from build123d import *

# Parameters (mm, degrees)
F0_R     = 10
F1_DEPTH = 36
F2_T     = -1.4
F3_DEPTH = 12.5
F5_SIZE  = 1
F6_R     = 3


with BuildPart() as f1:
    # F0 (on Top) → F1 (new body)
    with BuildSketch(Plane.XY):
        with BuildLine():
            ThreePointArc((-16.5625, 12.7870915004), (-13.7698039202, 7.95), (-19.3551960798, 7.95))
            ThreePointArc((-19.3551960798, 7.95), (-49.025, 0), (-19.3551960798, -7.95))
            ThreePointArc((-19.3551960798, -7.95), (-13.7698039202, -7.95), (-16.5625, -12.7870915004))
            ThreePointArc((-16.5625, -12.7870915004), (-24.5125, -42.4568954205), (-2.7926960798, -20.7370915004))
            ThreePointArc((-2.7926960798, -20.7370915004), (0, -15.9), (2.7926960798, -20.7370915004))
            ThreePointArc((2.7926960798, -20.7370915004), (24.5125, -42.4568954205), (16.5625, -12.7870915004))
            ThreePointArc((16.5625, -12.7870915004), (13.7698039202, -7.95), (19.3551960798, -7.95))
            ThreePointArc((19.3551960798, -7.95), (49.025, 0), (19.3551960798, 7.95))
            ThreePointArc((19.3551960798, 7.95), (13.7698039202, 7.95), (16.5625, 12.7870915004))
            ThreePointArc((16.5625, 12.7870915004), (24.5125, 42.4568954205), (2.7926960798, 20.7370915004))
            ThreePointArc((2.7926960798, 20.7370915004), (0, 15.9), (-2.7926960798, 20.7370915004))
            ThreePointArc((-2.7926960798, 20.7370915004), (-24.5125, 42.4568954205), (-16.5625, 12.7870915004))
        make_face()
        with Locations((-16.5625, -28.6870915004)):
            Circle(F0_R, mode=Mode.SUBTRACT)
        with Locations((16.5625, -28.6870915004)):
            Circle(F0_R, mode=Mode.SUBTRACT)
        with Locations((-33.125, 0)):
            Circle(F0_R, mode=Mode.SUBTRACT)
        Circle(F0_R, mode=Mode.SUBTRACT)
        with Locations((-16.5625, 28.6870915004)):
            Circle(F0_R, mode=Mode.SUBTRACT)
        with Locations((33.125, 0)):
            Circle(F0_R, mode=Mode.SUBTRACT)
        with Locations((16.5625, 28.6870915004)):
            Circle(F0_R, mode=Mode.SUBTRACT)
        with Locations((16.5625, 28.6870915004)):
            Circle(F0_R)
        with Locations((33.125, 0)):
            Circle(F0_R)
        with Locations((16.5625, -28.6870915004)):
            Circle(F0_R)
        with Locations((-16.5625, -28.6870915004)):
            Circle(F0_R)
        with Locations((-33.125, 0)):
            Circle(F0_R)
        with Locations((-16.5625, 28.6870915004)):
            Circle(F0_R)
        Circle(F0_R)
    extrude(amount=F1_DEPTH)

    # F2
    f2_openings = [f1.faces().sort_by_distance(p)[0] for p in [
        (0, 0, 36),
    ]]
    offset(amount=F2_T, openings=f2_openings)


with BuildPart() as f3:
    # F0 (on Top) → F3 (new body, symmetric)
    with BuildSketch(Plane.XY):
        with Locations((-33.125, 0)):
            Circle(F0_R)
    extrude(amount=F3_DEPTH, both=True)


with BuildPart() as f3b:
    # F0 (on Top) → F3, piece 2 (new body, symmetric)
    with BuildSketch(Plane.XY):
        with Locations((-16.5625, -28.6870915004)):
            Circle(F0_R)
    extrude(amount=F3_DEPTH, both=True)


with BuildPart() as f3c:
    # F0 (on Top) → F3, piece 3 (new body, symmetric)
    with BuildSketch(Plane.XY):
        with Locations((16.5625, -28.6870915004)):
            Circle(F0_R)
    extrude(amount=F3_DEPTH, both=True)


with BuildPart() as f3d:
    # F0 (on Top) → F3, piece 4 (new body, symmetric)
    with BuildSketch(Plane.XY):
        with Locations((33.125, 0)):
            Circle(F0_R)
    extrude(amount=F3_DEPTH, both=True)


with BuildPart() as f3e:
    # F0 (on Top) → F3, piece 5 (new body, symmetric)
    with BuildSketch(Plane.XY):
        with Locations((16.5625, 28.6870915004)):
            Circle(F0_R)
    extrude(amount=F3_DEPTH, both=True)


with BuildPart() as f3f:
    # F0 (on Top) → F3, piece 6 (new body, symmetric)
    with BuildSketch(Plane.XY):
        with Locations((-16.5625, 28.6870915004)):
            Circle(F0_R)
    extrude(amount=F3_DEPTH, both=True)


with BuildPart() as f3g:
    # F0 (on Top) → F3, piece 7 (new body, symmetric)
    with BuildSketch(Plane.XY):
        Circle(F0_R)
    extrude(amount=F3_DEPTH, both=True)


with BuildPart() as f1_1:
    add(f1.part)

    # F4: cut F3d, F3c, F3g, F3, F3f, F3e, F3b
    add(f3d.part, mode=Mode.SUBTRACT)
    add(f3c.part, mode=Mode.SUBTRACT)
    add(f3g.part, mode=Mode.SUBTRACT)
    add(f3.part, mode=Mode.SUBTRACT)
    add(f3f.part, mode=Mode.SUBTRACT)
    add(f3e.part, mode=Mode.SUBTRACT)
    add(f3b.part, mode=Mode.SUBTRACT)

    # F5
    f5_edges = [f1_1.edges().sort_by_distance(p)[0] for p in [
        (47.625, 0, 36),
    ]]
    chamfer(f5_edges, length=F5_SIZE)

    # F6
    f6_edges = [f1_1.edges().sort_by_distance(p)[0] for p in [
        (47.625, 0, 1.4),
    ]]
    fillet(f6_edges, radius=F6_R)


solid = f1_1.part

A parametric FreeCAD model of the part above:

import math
import FreeCAD as App
import Part
import Sketcher


def edges_at(feature, points):
    """Names of the edges that pass closest to the given points."""
    edges = feature.Shape.Edges
    near = lambda p: min(range(len(edges)), key=lambda i: edges[i].distToShape(Part.Vertex(*p))[0])
    return sorted({f"Edge{near(p) + 1}" for p in points})


def faces_at(feature, points):
    """Names of the faces that lie closest to the given points."""
    faces = feature.Shape.Faces
    near = lambda p: min(range(len(faces)), key=lambda i: faces[i].distToShape(Part.Vertex(*p))[0])
    return sorted({f"Face{near(p) + 1}" for p in points})

doc = App.newDocument("Part")
body = doc.addObject("PartDesign::Body", "Body")

sketch1 = doc.addObject("Sketcher::SketchObject", "Sketch")
body.addObject(sketch1)
sketch1.AttachmentSupport = (doc.XY_Plane, [""])
sketch1.MapMode = "FlatFace"
sketch1.addGeometry(Part.ArcOfCircle(Part.Circle(App.Vector(-16.6, 9.6, 0), App.Vector(0, 0, 1), 3.2), math.radians(-150), math.radians(90)), False)
sketch1.addGeometry(Part.ArcOfCircle(Part.Circle(App.Vector(-33.1, 0, 0), App.Vector(0, 0, 1), 15.9), math.radians(30), math.radians(330)), False)
sketch1.addGeometry(Part.ArcOfCircle(Part.Circle(App.Vector(-16.6, -9.6, 0), App.Vector(0, 0, 1), 3.2), math.radians(-90), math.radians(150)), False)
sketch1.addGeometry(Part.ArcOfCircle(Part.Circle(App.Vector(-16.6, -28.7, 0), App.Vector(0, 0, 1), 15.9), math.radians(90), math.radians(390)), False)
sketch1.addGeometry(Part.ArcOfCircle(Part.Circle(App.Vector(0, -19.1, 0), App.Vector(0, 0, 1), 3.2), math.radians(-30), math.radians(210)), False)
sketch1.addGeometry(Part.ArcOfCircle(Part.Circle(App.Vector(16.6, -28.7, 0), App.Vector(0, 0, 1), 15.9), math.radians(150), math.radians(450)), False)
sketch1.addGeometry(Part.ArcOfCircle(Part.Circle(App.Vector(16.6, -9.6, 0), App.Vector(0, 0, 1), 3.2), math.radians(30), math.radians(270)), False)
sketch1.addGeometry(Part.ArcOfCircle(Part.Circle(App.Vector(33.1, 0, 0), App.Vector(0, 0, 1), 15.9), math.radians(-150), math.radians(150)), False)
sketch1.addGeometry(Part.ArcOfCircle(Part.Circle(App.Vector(16.6, 9.6, 0), App.Vector(0, 0, 1), 3.2), math.radians(90), math.radians(330)), False)
sketch1.addGeometry(Part.ArcOfCircle(Part.Circle(App.Vector(16.6, 28.7, 0), App.Vector(0, 0, 1), 15.9), math.radians(-90), math.radians(210)), False)
sketch1.addGeometry(Part.ArcOfCircle(Part.Circle(App.Vector(0, 19.1, 0), App.Vector(0, 0, 1), 3.2), math.radians(150), math.radians(390)), False)
sketch1.addGeometry(Part.ArcOfCircle(Part.Circle(App.Vector(-16.6, 28.7, 0), App.Vector(0, 0, 1), 15.9), math.radians(-30), math.radians(270)), False)
sketch1.addConstraint(Sketcher.Constraint("Tangent", 0, 1, 1, 1))
sketch1.addConstraint(Sketcher.Constraint("Tangent", 1, 2, 2, 2))
sketch1.addConstraint(Sketcher.Constraint("Tangent", 2, 1, 3, 1))
sketch1.addConstraint(Sketcher.Constraint("Tangent", 3, 2, 4, 2))
sketch1.addConstraint(Sketcher.Constraint("Tangent", 4, 1, 5, 1))
sketch1.addConstraint(Sketcher.Constraint("Tangent", 5, 2, 6, 2))
sketch1.addConstraint(Sketcher.Constraint("Tangent", 6, 1, 7, 1))
sketch1.addConstraint(Sketcher.Constraint("Tangent", 7, 2, 8, 2))
sketch1.addConstraint(Sketcher.Constraint("Tangent", 8, 1, 9, 1))
sketch1.addConstraint(Sketcher.Constraint("Tangent", 9, 2, 10, 2))
sketch1.addConstraint(Sketcher.Constraint("Tangent", 10, 1, 11, 1))
sketch1.addConstraint(Sketcher.Constraint("Tangent", 11, 2, 0, 2))
sketch1.addConstraint(Sketcher.Constraint("Equal", 0, 2))
sketch1.addConstraint(Sketcher.Constraint("Equal", 1, 3))
sketch1.addConstraint(Sketcher.Constraint("Equal", 2, 4))
sketch1.addConstraint(Sketcher.Constraint("Equal", 3, 5))
sketch1.addConstraint(Sketcher.Constraint("Equal", 4, 6))
sketch1.addConstraint(Sketcher.Constraint("Equal", 5, 7))
sketch1.addConstraint(Sketcher.Constraint("Equal", 6, 8))
sketch1.addConstraint(Sketcher.Constraint("Equal", 7, 9))
sketch1.addConstraint(Sketcher.Constraint("Equal", 8, 10))
sketch1.addConstraint(Sketcher.Constraint("Equal", 9, 11))
sketch1.addConstraint(Sketcher.Constraint("Symmetric", 0, 3, 6, 3, -1, 1))
sketch1.addConstraint(Sketcher.Constraint("Symmetric", 2, 3, 8, 3, -1, 1))
sketch1.addConstraint(Sketcher.Constraint("Symmetric", 4, 3, 10, 3, -1, 1))
sketch1.addConstraint(Sketcher.Constraint("Symmetric", 3, 3, 5, 3, -2))
sketch1.addConstraint(Sketcher.Constraint("PointOnObject", 1, 3, -1))
sketch1.addConstraint(Sketcher.Constraint("Vertical", 2, 3, 3, 3))
sketch1.addConstraint(Sketcher.Constraint("Radius", 1, 15.9))
sketch1.addConstraint(Sketcher.Constraint("DistanceY", 1, 2, 0, 1, 15.9))
sketch1.addConstraint(Sketcher.Constraint("DistanceY", 3, 2, 2, 1, 7.95))
sketch1.addConstraint(Sketcher.Constraint("DistanceX", 1, 3, -1, 1, 33.125))
pad1 = doc.addObject("PartDesign::Pad", "Pad")
body.addObject(pad1)
pad1.Profile = sketch1
pad1.Length = 36
doc.recompute()

thickness = doc.addObject("PartDesign::Thickness", "Thickness")
body.addObject(thickness)
thickness.Base = (pad1, faces_at(pad1, [(0, 0, 36)]))
thickness.Value = 1.4
thickness.Reversed = True
thickness.Join = "Arc"
body2 = doc.addObject("PartDesign::Body", "Body001")

sketch2 = doc.addObject("Sketcher::SketchObject", "Sketch001")
body2.addObject(sketch2)
sketch2.AttachmentSupport = (doc.getObject("XY_Plane001"), [""])
sketch2.MapMode = "FlatFace"
sketch2.addGeometry(Part.Circle(App.Vector(-33, 0, 0), App.Vector(0, 0, 1), 10), False)
sketch2.addConstraint(Sketcher.Constraint("PointOnObject", 0, 3, -1))
sketch2.addConstraint(Sketcher.Constraint("Diameter", 0, 20.0))
sketch2.addConstraint(Sketcher.Constraint("DistanceX", 0, 3, -1, 1, 33.125))
pad2 = doc.addObject("PartDesign::Pad", "Pad001")
body2.addObject(pad2)
pad2.Profile = sketch2
pad2.Length = 25
pad2.Midplane = True
body3 = doc.addObject("PartDesign::Body", "Body002")

sketch3 = doc.addObject("Sketcher::SketchObject", "Sketch002")
body3.addObject(sketch3)
sketch3.AttachmentSupport = (doc.getObject("XY_Plane002"), [""])
sketch3.MapMode = "FlatFace"
sketch3.addGeometry(Part.Circle(App.Vector(-17, -29, 0), App.Vector(0, 0, 1), 10), False)
sketch3.addConstraint(Sketcher.Constraint("Diameter", 0, 20.0))
sketch3.addConstraint(Sketcher.Constraint("DistanceX", 0, 3, -1, 1, 16.5625))
sketch3.addConstraint(Sketcher.Constraint("DistanceY", 0, 3, -1, 1, 28.687092))
pad3 = doc.addObject("PartDesign::Pad", "Pad002")
body3.addObject(pad3)
pad3.Profile = sketch3
pad3.Length = 25
pad3.Midplane = True
body4 = doc.addObject("PartDesign::Body", "Body003")

sketch4 = doc.addObject("Sketcher::SketchObject", "Sketch003")
body4.addObject(sketch4)
sketch4.AttachmentSupport = (doc.getObject("XY_Plane003"), [""])
sketch4.MapMode = "FlatFace"
sketch4.addGeometry(Part.Circle(App.Vector(17, -29, 0), App.Vector(0, 0, 1), 10), False)
sketch4.addConstraint(Sketcher.Constraint("Diameter", 0, 20.0))
sketch4.addConstraint(Sketcher.Constraint("DistanceX", -1, 1, 0, 3, 16.5625))
sketch4.addConstraint(Sketcher.Constraint("DistanceY", 0, 3, -1, 1, 28.687092))
pad4 = doc.addObject("PartDesign::Pad", "Pad003")
body4.addObject(pad4)
pad4.Profile = sketch4
pad4.Length = 25
pad4.Midplane = True
body5 = doc.addObject("PartDesign::Body", "Body004")

sketch5 = doc.addObject("Sketcher::SketchObject", "Sketch004")
body5.addObject(sketch5)
sketch5.AttachmentSupport = (doc.getObject("XY_Plane004"), [""])
sketch5.MapMode = "FlatFace"
sketch5.addGeometry(Part.Circle(App.Vector(33, 0, 0), App.Vector(0, 0, 1), 10), False)
sketch5.addConstraint(Sketcher.Constraint("PointOnObject", 0, 3, -1))
sketch5.addConstraint(Sketcher.Constraint("Diameter", 0, 20.0))
sketch5.addConstraint(Sketcher.Constraint("DistanceX", -1, 1, 0, 3, 33.125))
pad5 = doc.addObject("PartDesign::Pad", "Pad004")
body5.addObject(pad5)
pad5.Profile = sketch5
pad5.Length = 25
pad5.Midplane = True
body6 = doc.addObject("PartDesign::Body", "Body005")

sketch6 = doc.addObject("Sketcher::SketchObject", "Sketch005")
body6.addObject(sketch6)
sketch6.AttachmentSupport = (doc.getObject("XY_Plane005"), [""])
sketch6.MapMode = "FlatFace"
sketch6.addGeometry(Part.Circle(App.Vector(17, 29, 0), App.Vector(0, 0, 1), 10), False)
sketch6.addConstraint(Sketcher.Constraint("Diameter", 0, 20.0))
sketch6.addConstraint(Sketcher.Constraint("DistanceX", -1, 1, 0, 3, 16.5625))
sketch6.addConstraint(Sketcher.Constraint("DistanceY", -1, 1, 0, 3, 28.687092))
pad6 = doc.addObject("PartDesign::Pad", "Pad005")
body6.addObject(pad6)
pad6.Profile = sketch6
pad6.Length = 25
pad6.Midplane = True
body7 = doc.addObject("PartDesign::Body", "Body006")

sketch7 = doc.addObject("Sketcher::SketchObject", "Sketch006")
body7.addObject(sketch7)
sketch7.AttachmentSupport = (doc.getObject("XY_Plane006"), [""])
sketch7.MapMode = "FlatFace"
sketch7.addGeometry(Part.Circle(App.Vector(-17, 29, 0), App.Vector(0, 0, 1), 10), False)
sketch7.addConstraint(Sketcher.Constraint("Diameter", 0, 20.0))
sketch7.addConstraint(Sketcher.Constraint("DistanceX", 0, 3, -1, 1, 16.5625))
sketch7.addConstraint(Sketcher.Constraint("DistanceY", -1, 1, 0, 3, 28.687092))
pad7 = doc.addObject("PartDesign::Pad", "Pad006")
body7.addObject(pad7)
pad7.Profile = sketch7
pad7.Length = 25
pad7.Midplane = True
body8 = doc.addObject("PartDesign::Body", "Body007")

sketch8 = doc.addObject("Sketcher::SketchObject", "Sketch007")
body8.addObject(sketch8)
sketch8.AttachmentSupport = (doc.getObject("XY_Plane007"), [""])
sketch8.MapMode = "FlatFace"
sketch8.addGeometry(Part.Circle(App.Vector(0, 0, 0), App.Vector(0, 0, 1), 10), False)
sketch8.addConstraint(Sketcher.Constraint("Coincident", 0, 3, -1, 1))
sketch8.addConstraint(Sketcher.Constraint("Diameter", 0, 20.0))
pad8 = doc.addObject("PartDesign::Pad", "Pad007")
body8.addObject(pad8)
pad8.Profile = sketch8
pad8.Length = 25
pad8.Midplane = True
doc.recompute()

boolean = doc.addObject("PartDesign::Boolean", "Boolean")
body.addObject(boolean)
boolean.Type = "Cut"
boolean.addObjects([body5])
doc.recompute()

boolean2 = doc.addObject("PartDesign::Boolean", "Boolean001")
body.addObject(boolean2)
boolean2.Type = "Cut"
boolean2.addObjects([body4])
doc.recompute()

boolean3 = doc.addObject("PartDesign::Boolean", "Boolean002")
body.addObject(boolean3)
boolean3.Type = "Cut"
boolean3.addObjects([body8])
doc.recompute()

boolean4 = doc.addObject("PartDesign::Boolean", "Boolean003")
body.addObject(boolean4)
boolean4.Type = "Cut"
boolean4.addObjects([body2])
doc.recompute()

boolean5 = doc.addObject("PartDesign::Boolean", "Boolean004")
body.addObject(boolean5)
boolean5.Type = "Cut"
boolean5.addObjects([body7])
doc.recompute()

boolean6 = doc.addObject("PartDesign::Boolean", "Boolean005")
body.addObject(boolean6)
boolean6.Type = "Cut"
boolean6.addObjects([body6])
doc.recompute()

boolean7 = doc.addObject("PartDesign::Boolean", "Boolean006")
body.addObject(boolean7)
boolean7.Type = "Cut"
boolean7.addObjects([body3])
doc.recompute()

chamfer = doc.addObject("PartDesign::Chamfer", "Chamfer")
body.addObject(chamfer)
chamfer.Base = (boolean7, edges_at(boolean7, [(47.625, 0, 36)]))
chamfer.Size = 1
doc.recompute()

fillet = doc.addObject("PartDesign::Fillet", "Fillet")
body.addObject(fillet)
fillet.Base = (chamfer, edges_at(chamfer, [(47.625, 0, 1.4)]))
fillet.Radius = 3

doc.recompute()
